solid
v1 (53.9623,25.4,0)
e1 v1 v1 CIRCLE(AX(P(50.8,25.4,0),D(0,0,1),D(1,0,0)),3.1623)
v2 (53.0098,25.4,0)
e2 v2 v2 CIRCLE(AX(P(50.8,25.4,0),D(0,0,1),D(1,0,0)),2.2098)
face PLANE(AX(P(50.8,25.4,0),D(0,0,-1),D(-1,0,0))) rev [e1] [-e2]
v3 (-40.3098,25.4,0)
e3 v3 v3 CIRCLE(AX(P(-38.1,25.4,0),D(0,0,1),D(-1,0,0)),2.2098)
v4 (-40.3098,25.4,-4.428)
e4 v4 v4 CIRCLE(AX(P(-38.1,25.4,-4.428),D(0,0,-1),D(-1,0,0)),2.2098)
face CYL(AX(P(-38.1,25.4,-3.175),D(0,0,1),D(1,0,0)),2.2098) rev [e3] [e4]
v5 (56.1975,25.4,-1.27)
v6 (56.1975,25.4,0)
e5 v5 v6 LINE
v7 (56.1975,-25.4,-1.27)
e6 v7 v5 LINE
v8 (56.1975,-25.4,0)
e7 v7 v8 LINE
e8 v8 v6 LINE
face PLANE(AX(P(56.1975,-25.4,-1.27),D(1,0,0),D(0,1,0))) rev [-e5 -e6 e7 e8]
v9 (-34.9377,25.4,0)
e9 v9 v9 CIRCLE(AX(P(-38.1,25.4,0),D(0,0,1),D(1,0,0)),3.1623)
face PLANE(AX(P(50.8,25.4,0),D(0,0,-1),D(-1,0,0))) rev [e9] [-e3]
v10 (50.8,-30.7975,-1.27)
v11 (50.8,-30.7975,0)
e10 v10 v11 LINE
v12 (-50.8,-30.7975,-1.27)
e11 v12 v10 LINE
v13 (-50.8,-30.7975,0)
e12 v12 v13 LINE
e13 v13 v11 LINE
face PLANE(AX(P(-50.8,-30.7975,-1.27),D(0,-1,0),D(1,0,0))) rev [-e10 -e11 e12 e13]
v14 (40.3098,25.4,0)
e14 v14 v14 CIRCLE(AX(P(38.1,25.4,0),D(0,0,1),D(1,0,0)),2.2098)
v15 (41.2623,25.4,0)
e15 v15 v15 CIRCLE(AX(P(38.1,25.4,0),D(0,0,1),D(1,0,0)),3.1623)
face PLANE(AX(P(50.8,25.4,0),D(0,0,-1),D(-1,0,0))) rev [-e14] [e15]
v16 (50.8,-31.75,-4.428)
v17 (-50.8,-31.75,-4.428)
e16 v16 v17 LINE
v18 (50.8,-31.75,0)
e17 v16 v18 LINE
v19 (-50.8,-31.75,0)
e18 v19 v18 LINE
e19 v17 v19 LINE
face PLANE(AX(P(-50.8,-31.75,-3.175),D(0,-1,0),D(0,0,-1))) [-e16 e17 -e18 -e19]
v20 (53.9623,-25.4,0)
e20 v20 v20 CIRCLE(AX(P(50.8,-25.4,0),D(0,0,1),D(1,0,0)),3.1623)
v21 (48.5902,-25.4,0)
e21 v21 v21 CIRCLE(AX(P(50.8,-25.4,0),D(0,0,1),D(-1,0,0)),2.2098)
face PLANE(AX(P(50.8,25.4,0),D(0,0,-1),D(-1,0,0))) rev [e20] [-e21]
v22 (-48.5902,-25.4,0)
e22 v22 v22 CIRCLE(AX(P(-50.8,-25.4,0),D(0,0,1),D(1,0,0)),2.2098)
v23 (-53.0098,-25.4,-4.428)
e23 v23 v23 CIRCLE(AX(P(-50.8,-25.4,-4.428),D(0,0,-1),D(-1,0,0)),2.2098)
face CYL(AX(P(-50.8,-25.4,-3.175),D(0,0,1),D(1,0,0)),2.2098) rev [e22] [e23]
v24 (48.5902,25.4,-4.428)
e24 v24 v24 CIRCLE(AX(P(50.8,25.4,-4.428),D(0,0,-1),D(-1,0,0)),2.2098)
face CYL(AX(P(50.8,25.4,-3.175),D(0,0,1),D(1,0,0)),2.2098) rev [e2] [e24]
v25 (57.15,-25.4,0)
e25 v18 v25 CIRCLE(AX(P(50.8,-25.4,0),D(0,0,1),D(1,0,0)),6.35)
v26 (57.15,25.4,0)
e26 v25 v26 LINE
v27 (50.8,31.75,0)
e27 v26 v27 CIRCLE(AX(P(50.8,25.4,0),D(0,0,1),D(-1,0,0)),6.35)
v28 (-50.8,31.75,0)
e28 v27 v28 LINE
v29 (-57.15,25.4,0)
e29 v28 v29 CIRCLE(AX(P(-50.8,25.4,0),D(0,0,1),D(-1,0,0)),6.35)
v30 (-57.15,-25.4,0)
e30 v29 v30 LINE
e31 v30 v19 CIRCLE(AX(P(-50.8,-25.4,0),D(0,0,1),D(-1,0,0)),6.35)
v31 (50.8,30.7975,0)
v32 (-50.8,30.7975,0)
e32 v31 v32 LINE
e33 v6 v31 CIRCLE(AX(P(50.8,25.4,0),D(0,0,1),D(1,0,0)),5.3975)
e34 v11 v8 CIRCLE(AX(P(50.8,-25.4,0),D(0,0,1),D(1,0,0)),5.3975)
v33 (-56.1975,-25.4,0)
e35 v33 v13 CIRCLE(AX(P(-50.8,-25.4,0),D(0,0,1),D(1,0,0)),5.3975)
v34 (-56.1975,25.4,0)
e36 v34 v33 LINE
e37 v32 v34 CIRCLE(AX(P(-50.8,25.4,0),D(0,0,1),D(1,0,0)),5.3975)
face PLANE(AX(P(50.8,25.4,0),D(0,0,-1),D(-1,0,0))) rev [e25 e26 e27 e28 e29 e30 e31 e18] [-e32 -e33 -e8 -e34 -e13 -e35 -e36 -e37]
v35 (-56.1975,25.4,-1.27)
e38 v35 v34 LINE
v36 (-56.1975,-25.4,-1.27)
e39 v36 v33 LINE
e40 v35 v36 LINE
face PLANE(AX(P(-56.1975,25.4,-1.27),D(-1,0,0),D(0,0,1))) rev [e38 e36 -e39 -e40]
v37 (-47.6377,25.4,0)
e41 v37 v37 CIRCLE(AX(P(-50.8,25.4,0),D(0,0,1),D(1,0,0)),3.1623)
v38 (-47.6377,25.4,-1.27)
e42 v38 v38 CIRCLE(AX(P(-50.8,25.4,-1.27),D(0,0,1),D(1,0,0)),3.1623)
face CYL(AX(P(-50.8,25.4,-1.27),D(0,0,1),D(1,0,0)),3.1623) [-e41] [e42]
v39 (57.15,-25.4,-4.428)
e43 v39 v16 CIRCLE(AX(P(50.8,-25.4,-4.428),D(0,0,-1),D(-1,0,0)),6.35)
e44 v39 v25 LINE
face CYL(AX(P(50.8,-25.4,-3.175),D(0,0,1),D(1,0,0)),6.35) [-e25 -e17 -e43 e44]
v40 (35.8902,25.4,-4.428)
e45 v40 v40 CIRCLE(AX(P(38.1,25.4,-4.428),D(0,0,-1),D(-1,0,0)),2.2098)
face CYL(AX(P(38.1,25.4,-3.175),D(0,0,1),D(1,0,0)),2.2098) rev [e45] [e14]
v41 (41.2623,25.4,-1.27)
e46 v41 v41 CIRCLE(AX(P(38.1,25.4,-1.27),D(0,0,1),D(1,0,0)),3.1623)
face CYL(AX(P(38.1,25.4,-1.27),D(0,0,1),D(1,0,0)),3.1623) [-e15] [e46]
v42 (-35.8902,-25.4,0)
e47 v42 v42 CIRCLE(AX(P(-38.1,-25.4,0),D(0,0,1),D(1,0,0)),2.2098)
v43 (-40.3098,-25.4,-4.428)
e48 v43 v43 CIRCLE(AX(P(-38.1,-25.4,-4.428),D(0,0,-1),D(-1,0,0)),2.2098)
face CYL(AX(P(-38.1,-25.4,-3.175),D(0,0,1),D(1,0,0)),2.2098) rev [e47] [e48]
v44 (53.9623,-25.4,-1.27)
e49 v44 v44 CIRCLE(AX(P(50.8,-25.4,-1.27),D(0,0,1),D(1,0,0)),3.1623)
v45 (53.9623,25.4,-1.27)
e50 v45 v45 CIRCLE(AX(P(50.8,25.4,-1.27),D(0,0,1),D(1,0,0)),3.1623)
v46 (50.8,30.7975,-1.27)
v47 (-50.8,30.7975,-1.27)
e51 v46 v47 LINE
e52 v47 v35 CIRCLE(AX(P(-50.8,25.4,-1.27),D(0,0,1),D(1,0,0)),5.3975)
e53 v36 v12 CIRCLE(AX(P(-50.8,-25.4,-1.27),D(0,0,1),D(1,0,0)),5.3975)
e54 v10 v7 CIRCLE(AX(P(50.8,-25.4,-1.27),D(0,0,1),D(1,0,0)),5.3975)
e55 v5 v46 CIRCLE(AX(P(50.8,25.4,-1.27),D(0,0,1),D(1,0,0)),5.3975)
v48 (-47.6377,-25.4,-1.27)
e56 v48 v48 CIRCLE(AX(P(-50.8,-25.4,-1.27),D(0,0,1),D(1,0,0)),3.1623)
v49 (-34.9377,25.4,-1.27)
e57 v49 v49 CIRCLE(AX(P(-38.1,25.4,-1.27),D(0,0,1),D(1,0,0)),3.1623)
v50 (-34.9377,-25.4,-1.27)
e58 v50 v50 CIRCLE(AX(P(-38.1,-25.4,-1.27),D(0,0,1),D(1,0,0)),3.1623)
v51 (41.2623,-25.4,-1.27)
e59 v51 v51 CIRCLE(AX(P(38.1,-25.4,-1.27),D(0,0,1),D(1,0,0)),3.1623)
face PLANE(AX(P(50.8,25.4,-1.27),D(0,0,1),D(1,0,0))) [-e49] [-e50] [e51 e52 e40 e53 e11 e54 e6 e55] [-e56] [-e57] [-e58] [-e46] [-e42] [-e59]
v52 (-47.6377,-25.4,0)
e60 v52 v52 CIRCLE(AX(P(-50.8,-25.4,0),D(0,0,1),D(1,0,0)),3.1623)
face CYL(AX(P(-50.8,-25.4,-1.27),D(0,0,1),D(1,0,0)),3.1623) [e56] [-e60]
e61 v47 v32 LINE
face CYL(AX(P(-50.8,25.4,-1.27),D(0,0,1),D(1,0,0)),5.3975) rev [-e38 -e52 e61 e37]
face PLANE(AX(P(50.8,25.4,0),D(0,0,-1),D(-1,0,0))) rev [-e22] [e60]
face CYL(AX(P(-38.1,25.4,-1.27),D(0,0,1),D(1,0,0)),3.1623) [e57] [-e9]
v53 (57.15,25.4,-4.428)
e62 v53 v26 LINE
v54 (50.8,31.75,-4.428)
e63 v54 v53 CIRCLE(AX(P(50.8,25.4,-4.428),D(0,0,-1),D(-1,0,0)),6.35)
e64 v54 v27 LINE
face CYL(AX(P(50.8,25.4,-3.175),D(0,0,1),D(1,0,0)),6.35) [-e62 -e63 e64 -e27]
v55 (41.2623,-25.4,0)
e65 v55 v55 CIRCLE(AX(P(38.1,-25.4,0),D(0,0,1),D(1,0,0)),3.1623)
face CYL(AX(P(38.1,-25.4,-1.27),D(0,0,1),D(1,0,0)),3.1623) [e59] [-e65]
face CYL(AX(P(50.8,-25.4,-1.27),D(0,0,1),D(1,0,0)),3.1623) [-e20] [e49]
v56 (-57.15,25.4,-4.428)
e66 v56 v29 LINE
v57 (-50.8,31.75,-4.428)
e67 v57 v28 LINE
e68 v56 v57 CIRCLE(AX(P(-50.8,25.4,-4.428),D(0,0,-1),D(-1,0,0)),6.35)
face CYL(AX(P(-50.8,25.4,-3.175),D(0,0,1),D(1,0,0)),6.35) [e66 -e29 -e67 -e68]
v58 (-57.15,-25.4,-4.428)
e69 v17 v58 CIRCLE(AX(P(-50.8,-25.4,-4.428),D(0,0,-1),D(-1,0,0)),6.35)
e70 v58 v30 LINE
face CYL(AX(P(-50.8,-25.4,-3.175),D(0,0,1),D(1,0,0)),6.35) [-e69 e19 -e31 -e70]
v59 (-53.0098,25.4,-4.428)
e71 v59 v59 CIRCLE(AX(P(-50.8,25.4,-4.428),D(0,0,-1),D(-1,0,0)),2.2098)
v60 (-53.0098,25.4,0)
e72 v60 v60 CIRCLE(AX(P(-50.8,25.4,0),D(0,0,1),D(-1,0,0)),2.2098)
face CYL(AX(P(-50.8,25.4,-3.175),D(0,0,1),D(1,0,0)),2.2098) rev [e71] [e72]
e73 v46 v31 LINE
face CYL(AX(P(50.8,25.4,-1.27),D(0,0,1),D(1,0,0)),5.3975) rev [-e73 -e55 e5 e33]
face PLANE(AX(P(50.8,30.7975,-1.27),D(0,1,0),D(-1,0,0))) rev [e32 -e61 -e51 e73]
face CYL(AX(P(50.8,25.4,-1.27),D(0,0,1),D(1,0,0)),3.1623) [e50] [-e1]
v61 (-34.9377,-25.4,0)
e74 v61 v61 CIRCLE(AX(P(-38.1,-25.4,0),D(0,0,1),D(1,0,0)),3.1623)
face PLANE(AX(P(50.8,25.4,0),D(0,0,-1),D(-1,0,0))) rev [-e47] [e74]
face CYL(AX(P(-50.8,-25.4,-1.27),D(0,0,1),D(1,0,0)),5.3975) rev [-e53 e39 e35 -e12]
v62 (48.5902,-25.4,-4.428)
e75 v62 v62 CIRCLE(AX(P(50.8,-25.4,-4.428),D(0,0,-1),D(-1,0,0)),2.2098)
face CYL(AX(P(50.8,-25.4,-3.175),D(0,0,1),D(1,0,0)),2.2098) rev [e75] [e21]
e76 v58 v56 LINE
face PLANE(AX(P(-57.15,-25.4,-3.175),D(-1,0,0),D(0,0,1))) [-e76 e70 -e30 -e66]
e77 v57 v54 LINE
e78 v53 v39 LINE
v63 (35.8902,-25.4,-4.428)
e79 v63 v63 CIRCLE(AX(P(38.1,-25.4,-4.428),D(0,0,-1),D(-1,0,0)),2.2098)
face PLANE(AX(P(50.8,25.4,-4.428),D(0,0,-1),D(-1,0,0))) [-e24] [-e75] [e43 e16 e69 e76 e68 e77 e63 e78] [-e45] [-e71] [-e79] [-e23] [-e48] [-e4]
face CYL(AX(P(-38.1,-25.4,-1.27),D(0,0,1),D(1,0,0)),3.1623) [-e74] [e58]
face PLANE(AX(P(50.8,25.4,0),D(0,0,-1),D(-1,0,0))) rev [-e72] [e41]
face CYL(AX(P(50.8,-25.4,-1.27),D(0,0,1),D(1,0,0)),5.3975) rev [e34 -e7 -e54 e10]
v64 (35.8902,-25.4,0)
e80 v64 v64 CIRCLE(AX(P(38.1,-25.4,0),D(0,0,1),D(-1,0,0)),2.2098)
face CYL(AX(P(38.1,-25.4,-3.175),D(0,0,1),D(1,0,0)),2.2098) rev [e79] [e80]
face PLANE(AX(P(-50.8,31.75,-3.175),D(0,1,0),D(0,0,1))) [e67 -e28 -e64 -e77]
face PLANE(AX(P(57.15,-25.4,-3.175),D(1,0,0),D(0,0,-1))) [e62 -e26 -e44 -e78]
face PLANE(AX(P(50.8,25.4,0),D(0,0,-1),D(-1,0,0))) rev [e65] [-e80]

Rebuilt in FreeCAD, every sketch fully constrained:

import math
import FreeCAD as App
import Part
import Sketcher

V = App.Vector
Q = App.Units.Quantity

doc = App.newDocument("Part")
body = doc.addObject("PartDesign::Body", "Body")

# Sketch on XY plane
sketch1 = body.newObject("Sketcher::SketchObject", "Sketch")
sketch1.AttachmentSupport = (doc.getObject("XY_Plane"), [""])
sketch1.MapMode = "FlatFace"
sketch1.addGeometry(Part.LineSegment(V(-50.8, -31.75, 0), V(50.8, -31.75, 0)), False)
sketch1.addGeometry(Part.ArcOfCircle(Part.Circle(V(50.8, -25.4, 0), V(0, 0, 1), 6.35), math.radians(-90), math.radians(0)), False)
sketch1.addGeometry(Part.LineSegment(V(57.15, -25.4, 0), V(57.15, 25.4, 0)), False)
sketch1.addGeometry(Part.ArcOfCircle(Part.Circle(V(50.8, 25.4, 0), V(0, 0, 1), 6.35), math.radians(0), math.radians(90)), False)
sketch1.addGeometry(Part.LineSegment(V(50.8, 31.75, 0), V(-50.8, 31.75, 0)), False)
sketch1.addGeometry(Part.ArcOfCircle(Part.Circle(V(-50.8, 25.4, 0), V(0, 0, 1), 6.35), math.radians(90), math.radians(180)), False)
sketch1.addGeometry(Part.LineSegment(V(-57.15, 25.4, 0), V(-57.15, -25.4, 0)), False)
sketch1.addGeometry(Part.ArcOfCircle(Part.Circle(V(-50.8, -25.4, 0), V(0, 0, 1), 6.35), math.radians(180), math.radians(270)), False)
sketch1.addGeometry(Part.Circle(V(-50.8, -25.4, 0), V(0, 0, 1), 2.2098), False)
sketch1.addGeometry(Part.Circle(V(-38.1, -25.4, 0), V(0, 0, 1), 2.2098), False)
sketch1.addGeometry(Part.Circle(V(38.1, -25.4, 0), V(0, 0, 1), 2.2098), False)
sketch1.addGeometry(Part.Circle(V(50.8, -25.4, 0), V(0, 0, 1), 2.2098), False)
sketch1.addGeometry(Part.Circle(V(-50.8, 25.4, 0), V(0, 0, 1), 2.2098), False)
sketch1.addGeometry(Part.Circle(V(-38.1, 25.4, 0), V(0, 0, 1), 2.2098), False)
sketch1.addGeometry(Part.Circle(V(38.1, 25.4, 0), V(0, 0, 1), 2.2098), False)
sketch1.addGeometry(Part.Circle(V(50.8, 25.4, 0), V(0, 0, 1), 2.2098), False)
sketch1.addConstraint(Sketcher.Constraint("Tangent", 0, 2, 1, 1))
sketch1.addConstraint(Sketcher.Constraint("Tangent", 1, 2, 2, 1))
sketch1.addConstraint(Sketcher.Constraint("Tangent", 2, 2, 3, 1))
sketch1.addConstraint(Sketcher.Constraint("Tangent", 3, 2, 4, 1))
sketch1.addConstraint(Sketcher.Constraint("Tangent", 4, 2, 5, 1))
sketch1.addConstraint(Sketcher.Constraint("Tangent", 5, 2, 6, 1))
sketch1.addConstraint(Sketcher.Constraint("Tangent", 6, 2, 7, 1))
sketch1.addConstraint(Sketcher.Constraint("Tangent", 7, 2, 0, 1))
sketch1.addConstraint(Sketcher.Constraint("Horizontal", 0))
sketch1.addConstraint(Sketcher.Constraint("Vertical", 2))
sketch1.addConstraint(Sketcher.Constraint("Horizontal", 4))
sketch1.addConstraint(Sketcher.Constraint("Vertical", 6))
sketch1.addConstraint(Sketcher.Constraint("Coincident", 8, 3, 7, 3))
sketch1.addConstraint(Sketcher.Constraint("Coincident", 11, 3, 1, 3))
sketch1.addConstraint(Sketcher.Constraint("Coincident", 12, 3, 5, 3))
sketch1.addConstraint(Sketcher.Constraint("Coincident", 15, 3, 3, 3))
sketch1.addConstraint(Sketcher.Constraint("Equal", 1, 3))
sketch1.addConstraint(Sketcher.Constraint("Equal", 3, 5))
sketch1.addConstraint(Sketcher.Constraint("Equal", 5, 7))
sketch1.addConstraint(Sketcher.Constraint("Equal", 8, 9))
sketch1.addConstraint(Sketcher.Constraint("Equal", 9, 10))
sketch1.addConstraint(Sketcher.Constraint("Equal", 10, 11))
sketch1.addConstraint(Sketcher.Constraint("Equal", 11, 12))
sketch1.addConstraint(Sketcher.Constraint("Equal", 12, 13))
sketch1.addConstraint(Sketcher.Constraint("Equal", 13, 14))
sketch1.addConstraint(Sketcher.Constraint("Equal", 14, 15))
sketch1.addConstraint(Sketcher.Constraint("Symmetric", 1, 3, 5, 3, -1, 1))
sketch1.addConstraint(Sketcher.Constraint("Symmetric", 10, 3, 13, 3, -1, 1))
sketch1.addConstraint(Sketcher.Constraint("Symmetric", 9, 3, 14, 3, -1, 1))
sketch1.addConstraint(Sketcher.Constraint("Symmetric", 9, 3, 10, 3, -2))
sketch1.addConstraint(Sketcher.Constraint("Horizontal", 8, 3, 9, 3))
sketch1.addConstraint(Sketcher.Constraint("DistanceX", 0, 1, 0, 2, Q("4 in")))
sketch1.addConstraint(Sketcher.Constraint("DistanceY", 2, 1, 2, 2, Q("2 in")))
sketch1.addConstraint(Sketcher.Constraint("Radius", 1, Q("0.25 in")))
sketch1.addConstraint(Sketcher.Constraint("Diameter", 8, Q("0.174 in")))
sketch1.addConstraint(Sketcher.Constraint("DistanceX", 9, 3, 10, 3, Q("3 in")))
pad1 = body.newObject("PartDesign::Pad", "Pad")
pad1.Profile = sketch1
pad1.Length = Q("0.125 in")
pad1.Reversed = True

# Sketch on XY plane
sketch2 = body.newObject("Sketcher::SketchObject", "Sketch001")
sketch2.AttachmentSupport = (doc.getObject("XY_Plane"), [""])
sketch2.MapMode = "FlatFace"
sketch2.addGeometry(Part.LineSegment(V(50.8, 30.7975, 0), V(-50.8, 30.7975, 0)), False)
sketch2.addGeometry(Part.ArcOfCircle(Part.Circle(V(-50.8, 25.4, 0), V(0, 0, 1), 5.3975), math.radians(90), math.radians(180)), False)
sketch2.addGeometry(Part.LineSegment(V(-56.1975, 25.4, 0), V(-56.1975, -25.4, 0)), False)
sketch2.addGeometry(Part.ArcOfCircle(Part.Circle(V(-50.8, -25.4, 0), V(0, 0, 1), 5.3975), math.radians(-180), math.radians(-90)), False)
sketch2.addGeometry(Part.LineSegment(V(-50.8, -30.7975, 0), V(50.8, -30.7975, 0)), False)
sketch2.addGeometry(Part.ArcOfCircle(Part.Circle(V(50.8, -25.4, 0), V(0, 0, 1), 5.3975), math.radians(-90), math.radians(0)), False)
sketch2.addGeometry(Part.LineSegment(V(56.1975, -25.4, 0), V(56.1975, 25.4, 0)), False)
sketch2.addGeometry(Part.ArcOfCircle(Part.Circle(V(50.8, 25.4, 0), V(0, 0, 1), 5.3975), math.radians(0), math.radians(90)), False)
sketch2.addGeometry(Part.Circle(V(-50.8, -25.4, 0), V(0, 0, 1), 3.1623), False)
sketch2.addGeometry(Part.Circle(V(-38.1, -25.4, 0), V(0, 0, 1), 3.1623), False)
sketch2.addGeometry(Part.Circle(V(38.1, -25.4, 0), V(0, 0, 1), 3.1623), False)
sketch2.addGeometry(Part.Circle(V(50.8, -25.4, 0), V(0, 0, 1), 3.1623), False)
sketch2.addGeometry(Part.Circle(V(-50.8, 25.4, 0), V(0, 0, 1), 3.1623), False)
sketch2.addGeometry(Part.Circle(V(-38.1, 25.4, 0), V(0, 0, 1), 3.1623), False)
sketch2.addGeometry(Part.Circle(V(38.1, 25.4, 0), V(0, 0, 1), 3.1623), False)
sketch2.addGeometry(Part.Circle(V(50.8, 25.4, 0), V(0, 0, 1), 3.1623), False)
sketch2.addConstraint(Sketcher.Constraint("Tangent", 0, 2, 1, 1))
sketch2.addConstraint(Sketcher.Constraint("Tangent", 1, 2, 2, 1))
sketch2.addConstraint(Sketcher.Constraint("Tangent", 2, 2, 3, 1))
sketch2.addConstraint(Sketcher.Constraint("Tangent", 3, 2, 4, 1))
sketch2.addConstraint(Sketcher.Constraint("Tangent", 4, 2, 5, 1))
sketch2.addConstraint(Sketcher.Constraint("Tangent", 5, 2, 6, 1))
sketch2.addConstraint(Sketcher.Constraint("Tangent", 6, 2, 7, 1))
sketch2.addConstraint(Sketcher.Constraint("Tangent", 7, 2, 0, 1))
sketch2.addConstraint(Sketcher.Constraint("Horizontal", 0))
sketch2.addConstraint(Sketcher.Constraint("Vertical", 2))
sketch2.addConstraint(Sketcher.Constraint("Horizontal", 4))
sketch2.addConstraint(Sketcher.Constraint("Vertical", 6))
sketch2.addConstraint(Sketcher.Constraint("Coincident", 8, 3, 3, 3))
sketch2.addConstraint(Sketcher.Constraint("Coincident", 11, 3, 5, 3))
sketch2.addConstraint(Sketcher.Constraint("Coincident", 12, 3, 1, 3))
sketch2.addConstraint(Sketcher.Constraint("Coincident", 15, 3, 7, 3))
sketch2.addConstraint(Sketcher.Constraint("Equal", 1, 3))
sketch2.addConstraint(Sketcher.Constraint("Equal", 3, 5))
sketch2.addConstraint(Sketcher.Constraint("Equal", 5, 7))
sketch2.addConstraint(Sketcher.Constraint("Equal", 8, 9))
sketch2.addConstraint(Sketcher.Constraint("Equal", 9, 10))
sketch2.addConstraint(Sketcher.Constraint("Equal", 10, 11))
sketch2.addConstraint(Sketcher.Constraint("Equal", 11, 12))
sketch2.addConstraint(Sketcher.Constraint("Equal", 12, 13))
sketch2.addConstraint(Sketcher.Constraint("Equal", 13, 14))
sketch2.addConstraint(Sketcher.Constraint("Equal", 14, 15))
sketch2.addConstraint(Sketcher.Constraint("Symmetric", 1, 3, 5, 3, -1, 1))
sketch2.addConstraint(Sketcher.Constraint("Symmetric", 10, 3, 13, 3, -1, 1))
sketch2.addConstraint(Sketcher.Constraint("Symmetric", 9, 3, 14, 3, -1, 1))
sketch2.addConstraint(Sketcher.Constraint("Symmetric", 9, 3, 10, 3, -2))
sketch2.addConstraint(Sketcher.Constraint("Horizontal", 8, 3, 9, 3))
sketch2.addConstraint(Sketcher.Constraint("DistanceX", 0, 2, 0, 1, Q("4 in")))
sketch2.addConstraint(Sketcher.Constraint("DistanceY", 2, 2, 2, 1, Q("2 in")))
sketch2.addConstraint(Sketcher.Constraint("Diameter", 8, Q("0.249 in")))
sketch2.addConstraint(Sketcher.Constraint("DistanceX", 9, 3, 10, 3, Q("3 in")))
sketch2.addConstraint(Sketcher.Constraint("Radius", 1, Q("0.2125 in")))
pocket1 = body.newObject("PartDesign::Pocket", "Pocket")
pocket1.Profile = sketch2
pocket1.Length = Q("0.05 in")

# Sketch on XY plane
sketch3 = body.newObject("Sketcher::SketchObject", "Sketch002")
sketch3.AttachmentSupport = (doc.getObject("XY_Plane"), [""])
sketch3.MapMode = "FlatFace"
sketch3.AttachmentOffset = App.Placement(V(0, 0, -0.125 * 25.4), App.Rotation())
sketch3.addGeometry(Part.LineSegment(V(57.15, 25.4, 0), V(57.15, -25.4, 0)), False)
sketch3.addGeometry(Part.ArcOfCircle(Part.Circle(V(50.8, -25.4, 0), V(0, 0, 1), 6.35), math.radians(-90), math.radians(0)), False)
sketch3.addGeometry(Part.LineSegment(V(50.8, -31.75, 0), V(-50.8, -31.75, 0)), False)
sketch3.addGeometry(Part.ArcOfCircle(Part.Circle(V(-50.8, -25.4, 0), V(0, 0, 1), 6.35), math.radians(180), math.radians(270)), False)
sketch3.addGeometry(Part.LineSegment(V(-57.15, -25.4, 0), V(-57.15, 25.4, 0)), False)
sketch3.addGeometry(Part.ArcOfCircle(Part.Circle(V(-50.8, 25.4, 0), V(0, 0, 1), 6.35), math.radians(90), math.radians(180)), False)
sketch3.addGeometry(Part.LineSegment(V(-50.8, 31.75, 0), V(50.8, 31.75, 0)), False)
sketch3.addGeometry(Part.ArcOfCircle(Part.Circle(V(50.8, 25.4, 0), V(0, 0, 1), 6.35), math.radians(0), math.radians(90)), False)
sketch3.addGeometry(Part.Circle(V(50.8, -25.4, 0), V(0, 0, 1), 2.2098), False)
sketch3.addGeometry(Part.Circle(V(38.1, -25.4, 0), V(0, 0, 1), 2.2098), False)
sketch3.addGeometry(Part.Circle(V(-38.1, -25.4, 0), V(0, 0, 1), 2.2098), False)
sketch3.addGeometry(Part.Circle(V(-50.8, -25.4, 0), V(0, 0, 1), 2.2098), False)
sketch3.addGeometry(Part.Circle(V(50.8, 25.4, 0), V(0, 0, 1), 2.2098), False)
sketch3.addGeometry(Part.Circle(V(38.1, 25.4, 0), V(0, 0, 1), 2.2098), False)
sketch3.addGeometry(Part.Circle(V(-38.1, 25.4, 0), V(0, 0, 1), 2.2098), False)
sketch3.addGeometry(Part.Circle(V(-50.8, 25.4, 0), V(0, 0, 1), 2.2098), False)
sketch3.addConstraint(Sketcher.Constraint("Tangent", 0, 2, 1, 2))
sketch3.addConstraint(Sketcher.Constraint("Tangent", 1, 1, 2, 1))
sketch3.addConstraint(Sketcher.Constraint("Tangent", 2, 2, 3, 2))
sketch3.addConstraint(Sketcher.Constraint("Tangent", 3, 1, 4, 1))
sketch3.addConstraint(Sketcher.Constraint("Tangent", 4, 2, 5, 2))
sketch3.addConstraint(Sketcher.Constraint("Tangent", 5, 1, 6, 1))
sketch3.addConstraint(Sketcher.Constraint("Tangent", 6, 2, 7, 2))
sketch3.addConstraint(Sketcher.Constraint("Tangent", 7, 1, 0, 1))
sketch3.addConstraint(Sketcher.Constraint("Vertical", 0))
sketch3.addConstraint(Sketcher.Constraint("Horizontal", 2))
sketch3.addConstraint(Sketcher.Constraint("Vertical", 4))
sketch3.addConstraint(Sketcher.Constraint("Horizontal", 6))
sketch3.addConstraint(Sketcher.Constraint("Coincident", 8, 3, 1, 3))
sketch3.addConstraint(Sketcher.Constraint("Coincident", 11, 3, 3, 3))
sketch3.addConstraint(Sketcher.Constraint("Coincident", 12, 3, 7, 3))
sketch3.addConstraint(Sketcher.Constraint("Coincident", 15, 3, 5, 3))
sketch3.addConstraint(Sketcher.Constraint("Equal", 1, 3))
sketch3.addConstraint(Sketcher.Constraint("Equal", 3, 5))
sketch3.addConstraint(Sketcher.Constraint("Equal", 5, 7))
sketch3.addConstraint(Sketcher.Constraint("Equal", 8, 9))
sketch3.addConstraint(Sketcher.Constraint("Equal", 9, 10))
sketch3.addConstraint(Sketcher.Constraint("Equal", 10, 11))
sketch3.addConstraint(Sketcher.Constraint("Equal", 11, 12))
sketch3.addConstraint(Sketcher.Constraint("Equal", 12, 13))
sketch3.addConstraint(Sketcher.Constraint("Equal", 13, 14))
sketch3.addConstraint(Sketcher.Constraint("Equal", 14, 15))
sketch3.addConstraint(Sketcher.Constraint("Symmetric", 1, 3, 5, 3, -1, 1))
sketch3.addConstraint(Sketcher.Constraint("Symmetric", 10, 3, 13, 3, -1, 1))
sketch3.addConstraint(Sketcher.Constraint("Symmetric", 9, 3, 14, 3, -1, 1))
sketch3.addConstraint(Sketcher.Constraint("Symmetric", 9, 3, 10, 3, -2))
sketch3.addConstraint(Sketcher.Constraint("Horizontal", 8, 3, 9, 3))
sketch3.addConstraint(Sketcher.Constraint("DistanceX", 2, 2, 2, 1, Q("4 in")))
sketch3.addConstraint(Sketcher.Constraint("DistanceY", 0, 2, 0, 1, Q("2 in")))
sketch3.addConstraint(Sketcher.Constraint("Radius", 1, Q("0.25 in")))
sketch3.addConstraint(Sketcher.Constraint("Diameter", 8, Q("0.174 in")))
sketch3.addConstraint(Sketcher.Constraint("DistanceX", 10, 3, 9, 3, Q("3 in")))
pad2 = body.newObject("PartDesign::Pad", "Pad001")
pad2.Profile = sketch3
pad2.Length = 1.253
pad2.Reversed = True

doc.recompute()
